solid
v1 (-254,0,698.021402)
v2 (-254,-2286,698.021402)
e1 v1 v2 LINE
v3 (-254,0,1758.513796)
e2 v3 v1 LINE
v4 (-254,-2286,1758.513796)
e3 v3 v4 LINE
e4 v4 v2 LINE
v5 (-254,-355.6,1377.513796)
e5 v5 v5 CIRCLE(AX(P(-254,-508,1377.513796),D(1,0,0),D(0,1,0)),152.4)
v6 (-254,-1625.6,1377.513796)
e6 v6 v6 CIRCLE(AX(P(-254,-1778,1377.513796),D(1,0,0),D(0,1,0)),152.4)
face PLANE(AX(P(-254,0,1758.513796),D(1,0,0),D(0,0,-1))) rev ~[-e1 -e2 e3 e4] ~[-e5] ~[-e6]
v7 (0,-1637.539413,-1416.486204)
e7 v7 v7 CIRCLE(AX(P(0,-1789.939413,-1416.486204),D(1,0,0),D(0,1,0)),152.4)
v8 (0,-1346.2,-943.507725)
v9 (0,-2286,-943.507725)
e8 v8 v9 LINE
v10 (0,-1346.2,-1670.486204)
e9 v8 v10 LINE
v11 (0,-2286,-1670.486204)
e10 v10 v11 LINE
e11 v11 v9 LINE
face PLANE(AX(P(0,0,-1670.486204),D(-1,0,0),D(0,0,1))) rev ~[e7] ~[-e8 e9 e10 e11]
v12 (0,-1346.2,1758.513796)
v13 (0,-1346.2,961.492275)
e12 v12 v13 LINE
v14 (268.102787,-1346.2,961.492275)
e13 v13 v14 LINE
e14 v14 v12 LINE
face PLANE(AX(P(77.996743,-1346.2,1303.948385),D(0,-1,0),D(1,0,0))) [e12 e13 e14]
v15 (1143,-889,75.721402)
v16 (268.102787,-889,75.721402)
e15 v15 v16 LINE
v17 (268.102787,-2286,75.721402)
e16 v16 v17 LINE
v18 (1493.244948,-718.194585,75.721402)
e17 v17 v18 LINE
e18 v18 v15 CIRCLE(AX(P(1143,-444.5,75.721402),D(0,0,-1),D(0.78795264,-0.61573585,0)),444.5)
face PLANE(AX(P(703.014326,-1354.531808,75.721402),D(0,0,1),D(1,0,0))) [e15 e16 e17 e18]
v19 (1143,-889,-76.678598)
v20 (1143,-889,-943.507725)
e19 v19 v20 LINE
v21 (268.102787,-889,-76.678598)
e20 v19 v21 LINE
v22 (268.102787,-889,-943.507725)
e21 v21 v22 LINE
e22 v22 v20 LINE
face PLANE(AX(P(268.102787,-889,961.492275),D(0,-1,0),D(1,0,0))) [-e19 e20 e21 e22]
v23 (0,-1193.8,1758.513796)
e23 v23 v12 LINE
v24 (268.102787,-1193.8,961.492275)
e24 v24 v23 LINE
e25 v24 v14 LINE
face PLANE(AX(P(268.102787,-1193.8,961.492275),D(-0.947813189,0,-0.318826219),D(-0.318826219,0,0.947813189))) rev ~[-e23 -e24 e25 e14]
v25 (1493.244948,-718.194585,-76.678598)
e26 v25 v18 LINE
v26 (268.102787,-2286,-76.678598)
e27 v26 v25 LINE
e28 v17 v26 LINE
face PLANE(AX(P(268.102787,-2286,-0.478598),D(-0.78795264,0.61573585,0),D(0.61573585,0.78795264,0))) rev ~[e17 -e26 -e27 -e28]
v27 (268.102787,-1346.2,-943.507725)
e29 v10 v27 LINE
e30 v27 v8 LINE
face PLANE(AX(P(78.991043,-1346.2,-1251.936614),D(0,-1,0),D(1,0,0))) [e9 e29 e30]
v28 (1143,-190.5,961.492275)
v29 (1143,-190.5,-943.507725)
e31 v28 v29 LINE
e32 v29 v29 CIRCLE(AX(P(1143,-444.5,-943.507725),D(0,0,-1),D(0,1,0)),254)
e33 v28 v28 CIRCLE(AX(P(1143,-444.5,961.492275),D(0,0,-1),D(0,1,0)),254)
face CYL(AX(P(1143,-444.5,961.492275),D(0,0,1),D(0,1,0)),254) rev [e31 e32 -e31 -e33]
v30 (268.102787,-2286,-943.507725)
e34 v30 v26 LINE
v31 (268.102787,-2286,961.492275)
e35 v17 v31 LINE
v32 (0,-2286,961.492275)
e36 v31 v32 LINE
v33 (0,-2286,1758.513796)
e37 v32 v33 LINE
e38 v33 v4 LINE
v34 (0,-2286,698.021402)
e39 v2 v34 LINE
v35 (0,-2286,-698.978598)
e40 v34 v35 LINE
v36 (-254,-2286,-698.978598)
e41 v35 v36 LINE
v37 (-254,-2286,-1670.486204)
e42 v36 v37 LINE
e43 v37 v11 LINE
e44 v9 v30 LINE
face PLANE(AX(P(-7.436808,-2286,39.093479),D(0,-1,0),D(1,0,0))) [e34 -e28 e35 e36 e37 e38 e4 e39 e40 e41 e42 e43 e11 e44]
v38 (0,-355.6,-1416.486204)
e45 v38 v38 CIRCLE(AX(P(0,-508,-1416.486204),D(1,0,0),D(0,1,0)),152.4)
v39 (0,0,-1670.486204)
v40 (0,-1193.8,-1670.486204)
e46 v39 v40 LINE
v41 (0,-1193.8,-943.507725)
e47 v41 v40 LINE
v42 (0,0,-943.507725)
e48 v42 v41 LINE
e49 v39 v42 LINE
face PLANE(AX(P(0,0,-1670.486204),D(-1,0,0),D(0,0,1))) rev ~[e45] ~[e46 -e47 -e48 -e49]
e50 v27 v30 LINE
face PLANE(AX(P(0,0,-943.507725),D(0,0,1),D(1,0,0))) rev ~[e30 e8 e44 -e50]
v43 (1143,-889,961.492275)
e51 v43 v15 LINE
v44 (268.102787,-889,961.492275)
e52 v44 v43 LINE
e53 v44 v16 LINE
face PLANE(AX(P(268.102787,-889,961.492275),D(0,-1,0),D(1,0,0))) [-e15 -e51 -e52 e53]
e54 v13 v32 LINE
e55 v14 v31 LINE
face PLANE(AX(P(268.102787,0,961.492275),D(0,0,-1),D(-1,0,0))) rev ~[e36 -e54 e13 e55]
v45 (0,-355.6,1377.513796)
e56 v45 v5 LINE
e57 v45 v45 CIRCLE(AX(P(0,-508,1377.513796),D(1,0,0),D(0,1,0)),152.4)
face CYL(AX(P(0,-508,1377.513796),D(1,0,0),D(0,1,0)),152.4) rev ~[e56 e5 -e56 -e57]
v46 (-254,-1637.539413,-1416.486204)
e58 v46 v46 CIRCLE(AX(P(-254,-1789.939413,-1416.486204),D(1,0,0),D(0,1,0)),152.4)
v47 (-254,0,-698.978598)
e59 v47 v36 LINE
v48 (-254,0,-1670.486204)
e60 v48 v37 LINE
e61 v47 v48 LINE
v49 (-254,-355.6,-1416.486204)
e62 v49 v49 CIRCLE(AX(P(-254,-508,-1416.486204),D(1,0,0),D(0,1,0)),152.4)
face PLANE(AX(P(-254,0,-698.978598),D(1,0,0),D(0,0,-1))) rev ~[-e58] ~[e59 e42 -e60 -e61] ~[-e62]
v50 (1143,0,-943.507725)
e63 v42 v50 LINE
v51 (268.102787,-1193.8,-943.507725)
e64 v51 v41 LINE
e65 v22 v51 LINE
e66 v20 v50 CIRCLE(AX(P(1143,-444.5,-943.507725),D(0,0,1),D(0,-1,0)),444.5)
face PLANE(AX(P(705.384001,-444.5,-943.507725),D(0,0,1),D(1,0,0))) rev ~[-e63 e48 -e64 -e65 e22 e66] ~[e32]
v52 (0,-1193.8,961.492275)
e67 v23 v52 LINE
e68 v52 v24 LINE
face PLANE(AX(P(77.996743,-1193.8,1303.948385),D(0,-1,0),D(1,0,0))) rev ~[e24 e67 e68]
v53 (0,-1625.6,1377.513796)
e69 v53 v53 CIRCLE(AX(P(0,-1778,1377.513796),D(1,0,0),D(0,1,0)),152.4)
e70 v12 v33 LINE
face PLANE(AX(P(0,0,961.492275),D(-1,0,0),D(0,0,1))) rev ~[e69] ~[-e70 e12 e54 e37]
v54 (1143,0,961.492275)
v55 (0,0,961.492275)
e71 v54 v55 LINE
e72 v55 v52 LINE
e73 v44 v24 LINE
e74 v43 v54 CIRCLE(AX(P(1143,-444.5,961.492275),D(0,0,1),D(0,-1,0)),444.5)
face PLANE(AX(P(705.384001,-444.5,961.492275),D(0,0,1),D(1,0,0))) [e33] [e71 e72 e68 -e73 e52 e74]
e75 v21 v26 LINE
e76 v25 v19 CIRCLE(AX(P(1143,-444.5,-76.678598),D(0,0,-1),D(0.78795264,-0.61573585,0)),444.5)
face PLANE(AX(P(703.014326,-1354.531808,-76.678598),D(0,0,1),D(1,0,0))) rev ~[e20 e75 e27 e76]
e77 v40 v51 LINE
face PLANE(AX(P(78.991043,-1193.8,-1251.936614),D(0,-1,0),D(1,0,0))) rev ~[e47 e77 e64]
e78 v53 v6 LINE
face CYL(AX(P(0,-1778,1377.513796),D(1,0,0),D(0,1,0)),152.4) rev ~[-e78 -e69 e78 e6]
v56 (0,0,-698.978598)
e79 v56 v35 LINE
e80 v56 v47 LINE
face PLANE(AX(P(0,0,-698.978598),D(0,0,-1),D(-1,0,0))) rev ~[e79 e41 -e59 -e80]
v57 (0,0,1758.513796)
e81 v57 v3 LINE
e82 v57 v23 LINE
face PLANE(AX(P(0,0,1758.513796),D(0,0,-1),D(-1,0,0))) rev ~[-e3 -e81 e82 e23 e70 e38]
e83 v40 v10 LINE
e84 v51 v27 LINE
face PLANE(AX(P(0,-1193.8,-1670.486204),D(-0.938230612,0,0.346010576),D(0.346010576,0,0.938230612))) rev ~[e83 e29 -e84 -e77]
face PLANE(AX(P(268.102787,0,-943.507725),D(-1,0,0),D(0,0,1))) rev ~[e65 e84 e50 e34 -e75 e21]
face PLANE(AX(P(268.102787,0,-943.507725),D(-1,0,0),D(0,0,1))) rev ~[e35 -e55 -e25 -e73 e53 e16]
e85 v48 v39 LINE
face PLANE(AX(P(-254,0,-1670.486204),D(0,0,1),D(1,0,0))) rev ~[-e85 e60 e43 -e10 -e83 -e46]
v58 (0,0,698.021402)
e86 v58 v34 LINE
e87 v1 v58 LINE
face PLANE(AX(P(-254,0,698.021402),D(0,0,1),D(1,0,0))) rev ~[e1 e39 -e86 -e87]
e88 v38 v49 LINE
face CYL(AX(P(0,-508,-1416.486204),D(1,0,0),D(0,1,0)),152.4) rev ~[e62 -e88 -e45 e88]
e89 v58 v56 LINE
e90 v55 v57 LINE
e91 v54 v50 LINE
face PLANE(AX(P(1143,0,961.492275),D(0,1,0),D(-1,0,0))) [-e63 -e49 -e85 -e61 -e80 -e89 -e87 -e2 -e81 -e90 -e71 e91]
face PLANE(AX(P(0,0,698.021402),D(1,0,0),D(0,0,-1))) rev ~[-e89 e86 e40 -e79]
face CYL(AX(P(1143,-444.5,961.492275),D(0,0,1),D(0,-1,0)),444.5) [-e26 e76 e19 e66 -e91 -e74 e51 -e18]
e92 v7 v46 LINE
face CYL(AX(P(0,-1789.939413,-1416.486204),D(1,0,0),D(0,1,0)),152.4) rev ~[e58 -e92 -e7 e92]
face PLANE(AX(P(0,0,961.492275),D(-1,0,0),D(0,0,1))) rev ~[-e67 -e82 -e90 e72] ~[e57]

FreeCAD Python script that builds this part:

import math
import FreeCAD as App
import Part
import Sketcher

V = App.Vector
Q = App.Units.Quantity


def add_polygon(sketch, points):
    """Adds a closed chain of lines whose ends are joined by coincident constraints."""
    first, n = sketch.GeometryCount, len(points)
    for a, b in zip(points, points[1:] + points[:1]):
        sketch.addGeometry(Part.LineSegment(App.Vector(*a, 0), App.Vector(*b, 0)), False)
    for i in range(n):
        sketch.addConstraint(Sketcher.Constraint("Coincident", first + i, 2, first + (i + 1) % n, 1))

doc = App.newDocument("Part")
params = doc.addObject("Spreadsheet::Sheet", "Params")
for row, (alias, value) in enumerate([
    ("sketch1_width", "10 in"),
    ("sketch1_height", "55 in"),
    ("sketch1_height2", "75 in"),
    ("pad1_length", "90 in"),
    ("sketch2_diameter", "12 in"),
    ("pad2_length", "6 in"),
    ("sketch4_diameter", "12 in"),
    ("pad3_length", "6 in"),
    ("sketch6_diameter", "20 in"),
    ("sketch6_radius", "17.5 in"),
    ("pad4_length", "75 in"),
    ("sketch7_radius", "17.5 in"),
    ("sketch7_height", "55 in"),
    ("pad5_length", "3 in"),
    ("sketch8_radius", "17.5 in"),
    ("sketch8_height", "55 in"),
    ("pad6_length", "3 in"),
], start=1):
    params.set(f"A{row}", alias)
    params.set(f"B{row}", "=" + value)
    params.setAlias(f"B{row}", alias)

body = doc.addObject("PartDesign::Body", "Body")

# Sketch on XZ plane
sketch1 = body.newObject("Sketcher::SketchObject", "Sketch")
sketch1.AttachmentSupport = (doc.getObject("XZ_Plane"), [""])
sketch1.MapMode = "FlatFace"
add_polygon(sketch1, [(0, 698), (0, -699), (-254, -699), (-254, -1670), (0, -1670), (0, -944), (268, -944), (268, 961), (0, 961), (0, 1759), (-254, 1759), (-254, 698)])  # lines 0-11
sketch1.addConstraint([
    Sketcher.Constraint("Vertical", 0),
    Sketcher.Constraint("Horizontal", 1),
    Sketcher.Constraint("Vertical", 2),
    Sketcher.Constraint("Horizontal", 3),
    Sketcher.Constraint("Vertical", 4),
    Sketcher.Constraint("Horizontal", 5),
    Sketcher.Constraint("Vertical", 6),
    Sketcher.Constraint("Horizontal", 7),
    Sketcher.Constraint("Vertical", 8),
    Sketcher.Constraint("Horizontal", 9),
    Sketcher.Constraint("Vertical", 10),
    Sketcher.Constraint("Horizontal", 11),
    Sketcher.Constraint("PointOnObject", 0, 2, -2),
    Sketcher.Constraint("PointOnObject", 3, 2, -2),
    Sketcher.Constraint("PointOnObject", 7, 2, -2),
    Sketcher.Constraint("Vertical", 2, 2, 9, 2),
    Sketcher.Constraint("DistanceX", 1, 2, 1, 1, Q("10 in")),
    Sketcher.Constraint("DistanceY", 0, 2, 0, 1, Q("55 in")),
    Sketcher.Constraint("DistanceY", 6, 1, 6, 2, Q("75 in")),
    Sketcher.Constraint("DistanceY", 4, 1, 4, 2, Q("28.6212 in")),
    Sketcher.Constraint("DistanceY", 8, 1, 8, 2, Q("31.3788 in")),
    Sketcher.Constraint("DistanceY", 0, 2, -1, 1, 698.978598),
    Sketcher.Constraint("DistanceX", 5, 1, 5, 2, 268.102787),
    Sketcher.Constraint("DistanceY", 2, 2, 2, 1, 971.507606),
])
sketch1.setExpression("Constraints[28]", "Params.sketch1_width")
sketch1.setExpression("Constraints[29]", "Params.sketch1_height")
sketch1.setExpression("Constraints[30]", "Params.sketch1_height2")
pad1 = body.newObject("PartDesign::Pad", "Pad")
pad1.Profile = sketch1
pad1.setExpression("Length", "Params.pad1_length")

# Sketch on YZ plane
sketch2 = body.newObject("Sketcher::SketchObject", "Sketch001")
sketch2.AttachmentSupport = (doc.getObject("YZ_Plane"), [""])
sketch2.MapMode = "FlatFace"
sketch2.addGeometry([
    Part.Circle(V(-1778, 1378, 0), V(0, 0, 1), 152),
    Part.Circle(V(-508, 1378, 0), V(0, 0, 1), 152),
], False)
sketch2.addConstraint([
    Sketcher.Constraint("Equal", 0, 1),
    Sketcher.Constraint("Horizontal", 0, 3, 1, 3),
    Sketcher.Constraint("Diameter", 0, Q("12 in")),
    Sketcher.Constraint("DistanceX", 0, 3, -1, 1, Q("70 in")),
    Sketcher.Constraint("DistanceX", 1, 3, -1, 1, Q("20 in")),
    Sketcher.Constraint("DistanceY", -1, 1, 0, 3, 1377.513796),
])
sketch2.setExpression("Constraints[2]", "Params.sketch2_diameter")
pocket1 = body.newObject("PartDesign::Pocket", "Pocket")
pocket1.Profile = sketch2
pocket1.Type = "ThroughAll"

# Sketch on XZ plane
sketch3 = body.newObject("Sketcher::SketchObject", "Sketch002")
sketch3.AttachmentSupport = (doc.getObject("XZ_Plane"), [""])
sketch3.MapMode = "FlatFace"
sketch3.AttachmentOffset = App.Placement(V(0, 0, 47 * 25.4), App.Rotation())
add_polygon(sketch3, [(268, 961), (0, 1759), (0, 961)])  # lines 0-2
sketch3.addConstraint([
    Sketcher.Constraint("Vertical", 1),
    Sketcher.Constraint("Horizontal", 2),
    Sketcher.Constraint("PointOnObject", 0, 2, -2),
    Sketcher.Constraint("DistanceY", 1, 2, 1, 1, Q("31.3788 in")),
    Sketcher.Constraint("DistanceX", 2, 1, 2, 2, 268.102787),
    Sketcher.Constraint("DistanceY", -1, 1, 0, 2, 1758.513796),
])
pad2 = body.newObject("PartDesign::Pad", "Pad001")
pad2.Profile = sketch3
pad2.setExpression("Length", "Params.pad2_length")

# Sketch on YZ plane
sketch4 = body.newObject("Sketcher::SketchObject", "Sketch003")
sketch4.AttachmentSupport = (doc.getObject("YZ_Plane"), [""])
sketch4.MapMode = "FlatFace"
sketch4.addGeometry([
    Part.Circle(V(-1790, -1416, 0), V(0, 0, 1), 152),
    Part.Circle(V(-508, -1416, 0), V(0, 0, 1), 152),
], False)
sketch4.addConstraint([
    Sketcher.Constraint("Equal", 0, 1),
    Sketcher.Constraint("Horizontal", 0, 3, 1, 3),
    Sketcher.Constraint("Diameter", 0, Q("12 in")),
    Sketcher.Constraint("DistanceX", 1, 3, -1, 1, Q("20 in")),
    Sketcher.Constraint("DistanceX", 0, 3, -1, 1, 1789.939413),
    Sketcher.Constraint("DistanceY", 0, 3, -1, 1, 1416.486204),
])
sketch4.setExpression("Constraints[2]", "Params.sketch4_diameter")
pocket2 = body.newObject("PartDesign::Pocket", "Pocket001")
pocket2.Profile = sketch4
pocket2.Type = "ThroughAll"

# Sketch on XZ plane
sketch5 = body.newObject("Sketcher::SketchObject", "Sketch004")
sketch5.AttachmentSupport = (doc.getObject("XZ_Plane"), [""])
sketch5.MapMode = "FlatFace"
sketch5.AttachmentOffset = App.Placement(V(0, 0, 47 * 25.4), App.Rotation())
add_polygon(sketch5, [(0, -944), (0, -1670), (268, -944)])  # lines 0-2
sketch5.addConstraint([
    Sketcher.Constraint("Vertical", 0),
    Sketcher.Constraint("Horizontal", 2),
    Sketcher.Constraint("PointOnObject", 0, 2, -2),
    Sketcher.Constraint("DistanceY", 0, 2, 0, 1, Q("28.6212 in")),
    Sketcher.Constraint("DistanceX", 2, 2, 2, 1, 268.102787),
    Sketcher.Constraint("DistanceY", 0, 2, -1, 1, 1670.486204),
])
pad3 = body.newObject("PartDesign::Pad", "Pad002")
pad3.Profile = sketch5
pad3.setExpression("Length", "Params.pad3_length")

# Sketch on XY plane
sketch6 = body.newObject("Sketcher::SketchObject", "Sketch005")
sketch6.AttachmentSupport = (doc.getObject("XY_Plane"), [""])
sketch6.MapMode = "FlatFace"
sketch6.AttachmentOffset = App.Placement(V(0, 0, 961.492275), App.Rotation())
sketch6.addGeometry([
    Part.LineSegment(V(268, 0, 0), V(268, -889, 0)),  # 0
    Part.LineSegment(V(268, -889, 0), V(1143, -889, 0)),  # 1
    Part.ArcOfCircle(Part.Circle(V(1143, -444, 0), V(0, 0, 1), 444), math.radians(-90), math.radians(90)),  # 2
    Part.LineSegment(V(1143, 0, 0), V(268, 0, 0)),  # 3
    Part.Circle(V(1143, -444, 0), V(0, 0, 1), 254),  # 4
], False)
sketch6.addConstraint([
    Sketcher.Constraint("Coincident", 0, 2, 1, 1),
    Sketcher.Constraint("Tangent", 1, 2, 2, 1),
    Sketcher.Constraint("Tangent", 2, 2, 3, 1),
    Sketcher.Constraint("Coincident", 3, 2, 0, 1),
    Sketcher.Constraint("Vertical", 0),
    Sketcher.Constraint("Horizontal", 1),
    Sketcher.Constraint("Horizontal", 3),
    Sketcher.Constraint("Coincident", 4, 3, 2, 3),
    Sketcher.Constraint("PointOnObject", 2, 2, -1),
    Sketcher.Constraint("Diameter", 4, Q("20 in")),
    Sketcher.Constraint("Radius", 2, Q("17.5 in")),
    Sketcher.Constraint("DistanceX", -1, 1, 2, 3, Q("45 in")),
    Sketcher.Constraint("DistanceX", 1, 1, 1, 2, 874.897213),
])
sketch6.setExpression("Constraints[9]", "Params.sketch6_diameter")
sketch6.setExpression("Constraints[10]", "Params.sketch6_radius")
pad4 = body.newObject("PartDesign::Pad", "Pad003")
pad4.Profile = sketch6
pad4.setExpression("Length", "Params.pad4_length")
pad4.Reversed = True

# Sketch on XY plane
sketch7 = body.newObject("Sketcher::SketchObject", "Sketch006")
sketch7.AttachmentSupport = (doc.getObject("XY_Plane"), [""])
sketch7.MapMode = "FlatFace"
sketch7.AttachmentOffset = App.Placement(V(0, 0, -0.478598), App.Rotation())
sketch7.addGeometry([
    Part.LineSegment(V(268, -889, 0), V(268, -2286, 0)),
    Part.LineSegment(V(268, -2286, 0), V(1493, -718, 0)),
    Part.ArcOfCircle(Part.Circle(V(1143, -444, 0), V(0, 0, 1), 444), math.radians(-90), math.radians(-38)),
    Part.LineSegment(V(1143, -889, 0), V(268, -889, 0)),
], False)
sketch7.addConstraint([
    Sketcher.Constraint("Coincident", 0, 2, 1, 1),
    Sketcher.Constraint("Tangent", 1, 2, 2, 2),
    Sketcher.Constraint("Tangent", 2, 1, 3, 1),
    Sketcher.Constraint("Coincident", 3, 2, 0, 1),
    Sketcher.Constraint("Vertical", 0),
    Sketcher.Constraint("Horizontal", 3),
    Sketcher.Constraint("Radius", 2, Q("17.5 in")),
    Sketcher.Constraint("DistanceY", 0, 2, 0, 1, Q("55 in")),
    Sketcher.Constraint("DistanceX", -1, 1, 2, 3, Q("45 in")),
    Sketcher.Constraint("DistanceY", 0, 2, -1, 1, Q("90 in")),
    Sketcher.Constraint("DistanceX", 3, 2, 3, 1, 874.897213),
])
sketch7.setExpression("Constraints[6]", "Params.sketch7_radius")
sketch7.setExpression("Constraints[7]", "Params.sketch7_height")
pad5 = body.newObject("PartDesign::Pad", "Pad004")
pad5.Profile = sketch7
pad5.setExpression("Length", "Params.pad5_length")
pad5.Reversed = True

# Sketch on XY plane
sketch8 = body.newObject("Sketcher::SketchObject", "Sketch007")
sketch8.AttachmentSupport = (doc.getObject("XY_Plane"), [""])
sketch8.MapMode = "FlatFace"
sketch8.AttachmentOffset = App.Placement(V(0, 0, -0.478598), App.Rotation())
sketch8.addGeometry([
    Part.LineSegment(V(268, -889, 0), V(268, -2286, 0)),
    Part.LineSegment(V(268, -2286, 0), V(1493, -718, 0)),
    Part.ArcOfCircle(Part.Circle(V(1143, -444, 0), V(0, 0, 1), 444), math.radians(-90), math.radians(-38)),
    Part.LineSegment(V(1143, -889, 0), V(268, -889, 0)),
], False)
sketch8.addConstraint([
    Sketcher.Constraint("Coincident", 0, 2, 1, 1),
    Sketcher.Constraint("Tangent", 1, 2, 2, 2),
    Sketcher.Constraint("Tangent", 2, 1, 3, 1),
    Sketcher.Constraint("Coincident", 3, 2, 0, 1),
    Sketcher.Constraint("Vertical", 0),
    Sketcher.Constraint("Horizontal", 3),
    Sketcher.Constraint("Radius", 2, Q("17.5 in")),
    Sketcher.Constraint("DistanceY", 0, 2, 0, 1, Q("55 in")),
    Sketcher.Constraint("DistanceX", -1, 1, 2, 3, Q("45 in")),
    Sketcher.Constraint("DistanceY", 0, 2, -1, 1, Q("90 in")),
    Sketcher.Constraint("DistanceX", 3, 2, 3, 1, 874.897213),
])
sketch8.setExpression("Constraints[6]", "Params.sketch8_radius")
sketch8.setExpression("Constraints[7]", "Params.sketch8_height")
pad6 = body.newObject("PartDesign::Pad", "Pad005")
pad6.Profile = sketch8
pad6.setExpression("Length", "Params.pad6_length")

doc.recompute()
